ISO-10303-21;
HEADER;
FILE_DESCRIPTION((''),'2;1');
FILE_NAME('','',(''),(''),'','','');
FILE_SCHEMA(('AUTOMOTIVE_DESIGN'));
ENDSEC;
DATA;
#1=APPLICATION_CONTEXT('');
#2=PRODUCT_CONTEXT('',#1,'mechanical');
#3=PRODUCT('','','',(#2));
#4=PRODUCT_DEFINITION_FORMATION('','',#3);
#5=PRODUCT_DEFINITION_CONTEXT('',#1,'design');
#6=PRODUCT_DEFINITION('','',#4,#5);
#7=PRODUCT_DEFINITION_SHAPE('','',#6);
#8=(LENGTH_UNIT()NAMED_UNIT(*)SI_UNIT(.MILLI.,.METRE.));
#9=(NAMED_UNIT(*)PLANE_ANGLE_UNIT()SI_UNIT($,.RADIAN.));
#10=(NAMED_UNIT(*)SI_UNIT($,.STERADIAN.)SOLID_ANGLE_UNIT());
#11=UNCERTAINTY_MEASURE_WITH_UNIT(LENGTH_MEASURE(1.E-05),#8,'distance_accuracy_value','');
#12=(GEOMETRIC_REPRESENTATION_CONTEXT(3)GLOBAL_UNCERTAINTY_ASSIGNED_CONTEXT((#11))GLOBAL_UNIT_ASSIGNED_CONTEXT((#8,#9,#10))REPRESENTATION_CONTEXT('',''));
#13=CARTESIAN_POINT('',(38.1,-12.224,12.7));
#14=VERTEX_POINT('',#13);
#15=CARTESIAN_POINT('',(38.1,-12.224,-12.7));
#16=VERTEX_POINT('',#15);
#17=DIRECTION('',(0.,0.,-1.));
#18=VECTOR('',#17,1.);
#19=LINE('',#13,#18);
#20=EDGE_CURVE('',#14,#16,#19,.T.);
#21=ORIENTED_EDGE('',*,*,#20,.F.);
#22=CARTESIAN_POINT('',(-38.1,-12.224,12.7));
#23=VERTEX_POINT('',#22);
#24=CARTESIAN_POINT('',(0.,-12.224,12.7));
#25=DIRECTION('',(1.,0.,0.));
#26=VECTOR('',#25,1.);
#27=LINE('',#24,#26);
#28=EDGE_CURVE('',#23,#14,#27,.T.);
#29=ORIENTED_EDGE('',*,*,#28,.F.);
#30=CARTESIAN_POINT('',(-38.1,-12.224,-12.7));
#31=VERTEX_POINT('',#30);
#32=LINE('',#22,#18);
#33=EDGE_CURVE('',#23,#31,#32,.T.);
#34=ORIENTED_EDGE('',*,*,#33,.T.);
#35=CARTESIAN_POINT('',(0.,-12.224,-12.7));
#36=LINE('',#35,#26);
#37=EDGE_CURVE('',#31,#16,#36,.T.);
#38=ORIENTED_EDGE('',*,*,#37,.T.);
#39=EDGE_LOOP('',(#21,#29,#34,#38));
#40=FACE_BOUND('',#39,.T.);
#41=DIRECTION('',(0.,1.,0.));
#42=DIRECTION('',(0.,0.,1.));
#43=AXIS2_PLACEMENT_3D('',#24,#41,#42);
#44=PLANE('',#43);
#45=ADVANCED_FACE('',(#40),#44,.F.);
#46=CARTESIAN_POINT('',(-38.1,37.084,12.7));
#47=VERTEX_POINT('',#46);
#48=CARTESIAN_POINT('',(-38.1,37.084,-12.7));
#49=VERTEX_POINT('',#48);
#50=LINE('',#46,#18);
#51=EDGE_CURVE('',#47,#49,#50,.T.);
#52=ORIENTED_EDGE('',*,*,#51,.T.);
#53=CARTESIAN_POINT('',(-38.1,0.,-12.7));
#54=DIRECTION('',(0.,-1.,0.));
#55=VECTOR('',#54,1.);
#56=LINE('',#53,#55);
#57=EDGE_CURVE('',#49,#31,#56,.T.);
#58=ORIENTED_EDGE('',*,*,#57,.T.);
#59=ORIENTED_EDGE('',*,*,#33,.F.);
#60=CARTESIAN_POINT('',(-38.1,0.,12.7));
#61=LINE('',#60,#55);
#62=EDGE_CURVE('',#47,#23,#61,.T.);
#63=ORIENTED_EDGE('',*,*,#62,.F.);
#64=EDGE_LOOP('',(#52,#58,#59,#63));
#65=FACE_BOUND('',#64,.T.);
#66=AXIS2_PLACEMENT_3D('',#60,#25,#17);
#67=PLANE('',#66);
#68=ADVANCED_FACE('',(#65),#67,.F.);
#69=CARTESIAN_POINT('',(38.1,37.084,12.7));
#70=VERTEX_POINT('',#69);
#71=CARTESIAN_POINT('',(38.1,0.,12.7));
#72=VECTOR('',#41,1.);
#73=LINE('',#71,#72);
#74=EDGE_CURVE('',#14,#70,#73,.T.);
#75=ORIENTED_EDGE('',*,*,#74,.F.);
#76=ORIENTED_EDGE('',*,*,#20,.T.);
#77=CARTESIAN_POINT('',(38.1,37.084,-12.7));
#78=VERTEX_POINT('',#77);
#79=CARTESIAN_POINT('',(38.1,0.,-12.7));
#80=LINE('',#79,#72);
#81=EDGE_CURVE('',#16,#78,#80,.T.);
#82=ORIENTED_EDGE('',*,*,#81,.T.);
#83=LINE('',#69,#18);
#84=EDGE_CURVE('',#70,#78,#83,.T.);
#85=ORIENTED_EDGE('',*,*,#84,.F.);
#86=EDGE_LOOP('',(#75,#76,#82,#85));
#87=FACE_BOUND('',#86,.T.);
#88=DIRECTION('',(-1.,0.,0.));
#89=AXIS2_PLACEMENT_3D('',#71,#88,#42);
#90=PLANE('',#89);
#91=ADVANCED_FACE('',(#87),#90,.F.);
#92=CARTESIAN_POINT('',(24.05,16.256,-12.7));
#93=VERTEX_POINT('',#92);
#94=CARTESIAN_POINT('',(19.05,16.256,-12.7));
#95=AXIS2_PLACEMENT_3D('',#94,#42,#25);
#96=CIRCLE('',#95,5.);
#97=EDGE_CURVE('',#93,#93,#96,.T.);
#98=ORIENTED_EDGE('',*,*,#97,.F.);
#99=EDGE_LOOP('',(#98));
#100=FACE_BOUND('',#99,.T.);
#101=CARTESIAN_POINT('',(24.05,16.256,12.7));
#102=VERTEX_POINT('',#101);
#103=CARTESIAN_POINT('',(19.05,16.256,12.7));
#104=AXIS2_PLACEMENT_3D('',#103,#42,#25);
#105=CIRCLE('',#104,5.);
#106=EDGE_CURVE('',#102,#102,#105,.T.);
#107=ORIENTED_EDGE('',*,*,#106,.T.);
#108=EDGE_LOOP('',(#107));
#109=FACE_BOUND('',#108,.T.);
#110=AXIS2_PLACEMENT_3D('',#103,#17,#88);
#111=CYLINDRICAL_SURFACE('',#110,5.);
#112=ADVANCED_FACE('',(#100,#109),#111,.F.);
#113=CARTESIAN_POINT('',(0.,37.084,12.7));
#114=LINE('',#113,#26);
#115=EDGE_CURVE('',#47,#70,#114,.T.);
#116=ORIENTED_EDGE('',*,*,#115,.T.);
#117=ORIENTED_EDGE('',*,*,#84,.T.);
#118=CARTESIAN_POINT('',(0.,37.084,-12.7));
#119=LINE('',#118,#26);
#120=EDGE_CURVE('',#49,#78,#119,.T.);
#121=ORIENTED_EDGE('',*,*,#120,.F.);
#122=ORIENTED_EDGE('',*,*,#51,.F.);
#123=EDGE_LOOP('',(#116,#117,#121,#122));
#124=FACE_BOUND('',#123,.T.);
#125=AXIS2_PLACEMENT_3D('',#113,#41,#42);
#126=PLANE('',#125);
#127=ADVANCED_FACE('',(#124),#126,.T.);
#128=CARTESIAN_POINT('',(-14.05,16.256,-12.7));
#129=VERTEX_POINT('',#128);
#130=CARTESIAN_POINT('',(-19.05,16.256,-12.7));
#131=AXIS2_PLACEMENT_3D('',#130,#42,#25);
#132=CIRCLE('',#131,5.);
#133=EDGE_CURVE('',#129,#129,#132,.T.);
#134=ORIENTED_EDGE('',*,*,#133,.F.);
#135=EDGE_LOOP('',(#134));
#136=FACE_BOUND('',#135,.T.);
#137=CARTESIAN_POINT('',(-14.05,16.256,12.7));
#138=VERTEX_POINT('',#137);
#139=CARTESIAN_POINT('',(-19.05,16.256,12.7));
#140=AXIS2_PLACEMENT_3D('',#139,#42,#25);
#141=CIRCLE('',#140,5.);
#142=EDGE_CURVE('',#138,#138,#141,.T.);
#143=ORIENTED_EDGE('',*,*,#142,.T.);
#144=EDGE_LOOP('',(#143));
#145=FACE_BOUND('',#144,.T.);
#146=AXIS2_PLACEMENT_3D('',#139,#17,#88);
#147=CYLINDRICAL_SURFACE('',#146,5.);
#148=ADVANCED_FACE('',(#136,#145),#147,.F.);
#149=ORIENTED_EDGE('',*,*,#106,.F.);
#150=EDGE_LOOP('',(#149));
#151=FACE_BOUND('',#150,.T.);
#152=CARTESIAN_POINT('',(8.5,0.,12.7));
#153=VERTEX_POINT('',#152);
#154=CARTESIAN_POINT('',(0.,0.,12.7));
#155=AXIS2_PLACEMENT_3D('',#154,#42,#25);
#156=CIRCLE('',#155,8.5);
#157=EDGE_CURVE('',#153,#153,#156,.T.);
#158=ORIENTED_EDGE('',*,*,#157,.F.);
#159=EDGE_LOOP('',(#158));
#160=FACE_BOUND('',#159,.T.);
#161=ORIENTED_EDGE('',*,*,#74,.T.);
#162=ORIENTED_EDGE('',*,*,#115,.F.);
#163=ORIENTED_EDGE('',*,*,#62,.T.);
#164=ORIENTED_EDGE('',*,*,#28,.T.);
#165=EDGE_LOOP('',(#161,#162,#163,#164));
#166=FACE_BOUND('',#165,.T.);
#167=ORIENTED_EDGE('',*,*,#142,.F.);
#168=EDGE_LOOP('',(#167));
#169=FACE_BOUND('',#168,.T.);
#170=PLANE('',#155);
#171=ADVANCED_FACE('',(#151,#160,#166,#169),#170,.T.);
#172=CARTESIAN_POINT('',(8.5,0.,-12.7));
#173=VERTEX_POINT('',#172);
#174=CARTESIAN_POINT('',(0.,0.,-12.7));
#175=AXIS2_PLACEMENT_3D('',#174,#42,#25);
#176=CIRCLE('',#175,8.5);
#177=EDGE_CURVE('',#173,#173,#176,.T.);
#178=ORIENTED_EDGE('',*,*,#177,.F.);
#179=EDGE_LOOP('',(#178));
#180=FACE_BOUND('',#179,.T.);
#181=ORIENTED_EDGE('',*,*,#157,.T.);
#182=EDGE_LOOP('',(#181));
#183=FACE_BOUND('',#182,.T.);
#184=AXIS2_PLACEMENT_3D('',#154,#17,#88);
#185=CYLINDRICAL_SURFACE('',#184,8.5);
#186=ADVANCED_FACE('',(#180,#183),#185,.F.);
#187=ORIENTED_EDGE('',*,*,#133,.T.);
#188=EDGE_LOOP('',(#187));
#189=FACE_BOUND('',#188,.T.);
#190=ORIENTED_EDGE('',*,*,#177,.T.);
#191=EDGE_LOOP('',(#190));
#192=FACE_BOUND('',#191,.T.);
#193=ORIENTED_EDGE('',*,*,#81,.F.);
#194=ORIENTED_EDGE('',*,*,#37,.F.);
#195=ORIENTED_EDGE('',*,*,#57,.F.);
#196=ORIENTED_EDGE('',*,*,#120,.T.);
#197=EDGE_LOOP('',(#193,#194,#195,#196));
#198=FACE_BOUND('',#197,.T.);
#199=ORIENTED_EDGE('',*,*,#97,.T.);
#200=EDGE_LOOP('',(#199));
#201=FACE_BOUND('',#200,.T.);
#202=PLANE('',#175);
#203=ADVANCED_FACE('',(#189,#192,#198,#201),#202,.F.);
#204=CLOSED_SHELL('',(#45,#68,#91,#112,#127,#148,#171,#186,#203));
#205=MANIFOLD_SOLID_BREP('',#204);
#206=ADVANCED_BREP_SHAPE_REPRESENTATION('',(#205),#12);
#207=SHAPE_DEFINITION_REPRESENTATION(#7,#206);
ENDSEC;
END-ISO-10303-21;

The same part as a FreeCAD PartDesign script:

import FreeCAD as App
import Part
import Sketcher
Q = App.Units.Quantity


def add_polygon(sketch, points):
    """Adds a closed chain of lines whose ends are joined by coincident constraints."""
    first, n = sketch.GeometryCount, len(points)
    for a, b in zip(points, points[1:] + points[:1]):
        sketch.addGeometry(Part.LineSegment(App.Vector(*a, 0), App.Vector(*b, 0)), False)
    for i in range(n):
        sketch.addConstraint(Sketcher.Constraint("Coincident", first + i, 2, first + (i + 1) % n, 1))

doc = App.newDocument("Part")
params = doc.addObject("Spreadsheet::Sheet", "Params")
for row, (alias, value) in enumerate([
    ("sketch1_diameter", "17 mm"),
    ("sketch1_diameter2", "10 mm"),
    ("sketch1_width", "76.2 mm"),
    ("pad1_length", "25.4 mm"),
], start=1):
    params.set(f"A{row}", alias)
    params.set(f"B{row}", "=" + value)
    params.setAlias(f"B{row}", alias)

body = doc.addObject("PartDesign::Body", "Body")

sketch1 = body.newObject("Sketcher::SketchObject", "Sketch")
sketch1.AttachmentSupport = (doc.getObject("XY_Plane"), [""])
sketch1.MapMode = "FlatFace"
add_polygon(sketch1, [(38.1, 37.084), (-38.1, 37.084), (-38.1, -12.224), (38.1, -12.224)])
sketch1.addGeometry(Part.Circle(App.Vector(0, 0, 0), App.Vector(0, 0, 1), 8.5), False)
sketch1.addGeometry(Part.Circle(App.Vector(19.05, 16.256, 0), App.Vector(0, 0, 1), 5), False)
sketch1.addGeometry(Part.Circle(App.Vector(-19.05, 16.256, 0), App.Vector(0, 0, 1), 5), False)
sketch1.addConstraint([
    Sketcher.Constraint("Horizontal", 0),
    Sketcher.Constraint("Vertical", 1),
    Sketcher.Constraint("Horizontal", 2),
    Sketcher.Constraint("Vertical", 3),
    Sketcher.Constraint("Coincident", 4, 3, -1, 1),
    Sketcher.Constraint("Equal", 5, 6),
    Sketcher.Constraint("Symmetric", 5, 3, 6, 3, -2),
    Sketcher.Constraint("Diameter", 4, Q("17 mm")),
    Sketcher.Constraint("Diameter", 5, Q("10 mm")),
    Sketcher.Constraint("DistanceX", 0, 2, 0, 1, Q("76.2 mm")),
    Sketcher.Constraint("DistanceX", 0, 2, -1, 1, Q("38.1 mm")),
    Sketcher.Constraint("DistanceX", 6, 3, 5, 3, Q("38.1 mm")),
    Sketcher.Constraint("DistanceY", 1, 2, 1, 1, Q("49.308 mm")),
    Sketcher.Constraint("DistanceY", 1, 2, 6, 3, Q("28.48 mm")),
    Sketcher.Constraint("DistanceY", -1, 1, 5, 3, Q("16.256 mm")),
])
sketch1.setExpression("Constraints[11]", "Params.sketch1_diameter")
sketch1.setExpression("Constraints[12]", "Params.sketch1_diameter2")
sketch1.setExpression("Constraints[13]", "Params.sketch1_width")
pad1 = body.newObject("PartDesign::Pad", "Pad")
pad1.Profile = sketch1
pad1.setExpression("Length", "Params.pad1_length")
pad1.Midplane = True

doc.recompute()
